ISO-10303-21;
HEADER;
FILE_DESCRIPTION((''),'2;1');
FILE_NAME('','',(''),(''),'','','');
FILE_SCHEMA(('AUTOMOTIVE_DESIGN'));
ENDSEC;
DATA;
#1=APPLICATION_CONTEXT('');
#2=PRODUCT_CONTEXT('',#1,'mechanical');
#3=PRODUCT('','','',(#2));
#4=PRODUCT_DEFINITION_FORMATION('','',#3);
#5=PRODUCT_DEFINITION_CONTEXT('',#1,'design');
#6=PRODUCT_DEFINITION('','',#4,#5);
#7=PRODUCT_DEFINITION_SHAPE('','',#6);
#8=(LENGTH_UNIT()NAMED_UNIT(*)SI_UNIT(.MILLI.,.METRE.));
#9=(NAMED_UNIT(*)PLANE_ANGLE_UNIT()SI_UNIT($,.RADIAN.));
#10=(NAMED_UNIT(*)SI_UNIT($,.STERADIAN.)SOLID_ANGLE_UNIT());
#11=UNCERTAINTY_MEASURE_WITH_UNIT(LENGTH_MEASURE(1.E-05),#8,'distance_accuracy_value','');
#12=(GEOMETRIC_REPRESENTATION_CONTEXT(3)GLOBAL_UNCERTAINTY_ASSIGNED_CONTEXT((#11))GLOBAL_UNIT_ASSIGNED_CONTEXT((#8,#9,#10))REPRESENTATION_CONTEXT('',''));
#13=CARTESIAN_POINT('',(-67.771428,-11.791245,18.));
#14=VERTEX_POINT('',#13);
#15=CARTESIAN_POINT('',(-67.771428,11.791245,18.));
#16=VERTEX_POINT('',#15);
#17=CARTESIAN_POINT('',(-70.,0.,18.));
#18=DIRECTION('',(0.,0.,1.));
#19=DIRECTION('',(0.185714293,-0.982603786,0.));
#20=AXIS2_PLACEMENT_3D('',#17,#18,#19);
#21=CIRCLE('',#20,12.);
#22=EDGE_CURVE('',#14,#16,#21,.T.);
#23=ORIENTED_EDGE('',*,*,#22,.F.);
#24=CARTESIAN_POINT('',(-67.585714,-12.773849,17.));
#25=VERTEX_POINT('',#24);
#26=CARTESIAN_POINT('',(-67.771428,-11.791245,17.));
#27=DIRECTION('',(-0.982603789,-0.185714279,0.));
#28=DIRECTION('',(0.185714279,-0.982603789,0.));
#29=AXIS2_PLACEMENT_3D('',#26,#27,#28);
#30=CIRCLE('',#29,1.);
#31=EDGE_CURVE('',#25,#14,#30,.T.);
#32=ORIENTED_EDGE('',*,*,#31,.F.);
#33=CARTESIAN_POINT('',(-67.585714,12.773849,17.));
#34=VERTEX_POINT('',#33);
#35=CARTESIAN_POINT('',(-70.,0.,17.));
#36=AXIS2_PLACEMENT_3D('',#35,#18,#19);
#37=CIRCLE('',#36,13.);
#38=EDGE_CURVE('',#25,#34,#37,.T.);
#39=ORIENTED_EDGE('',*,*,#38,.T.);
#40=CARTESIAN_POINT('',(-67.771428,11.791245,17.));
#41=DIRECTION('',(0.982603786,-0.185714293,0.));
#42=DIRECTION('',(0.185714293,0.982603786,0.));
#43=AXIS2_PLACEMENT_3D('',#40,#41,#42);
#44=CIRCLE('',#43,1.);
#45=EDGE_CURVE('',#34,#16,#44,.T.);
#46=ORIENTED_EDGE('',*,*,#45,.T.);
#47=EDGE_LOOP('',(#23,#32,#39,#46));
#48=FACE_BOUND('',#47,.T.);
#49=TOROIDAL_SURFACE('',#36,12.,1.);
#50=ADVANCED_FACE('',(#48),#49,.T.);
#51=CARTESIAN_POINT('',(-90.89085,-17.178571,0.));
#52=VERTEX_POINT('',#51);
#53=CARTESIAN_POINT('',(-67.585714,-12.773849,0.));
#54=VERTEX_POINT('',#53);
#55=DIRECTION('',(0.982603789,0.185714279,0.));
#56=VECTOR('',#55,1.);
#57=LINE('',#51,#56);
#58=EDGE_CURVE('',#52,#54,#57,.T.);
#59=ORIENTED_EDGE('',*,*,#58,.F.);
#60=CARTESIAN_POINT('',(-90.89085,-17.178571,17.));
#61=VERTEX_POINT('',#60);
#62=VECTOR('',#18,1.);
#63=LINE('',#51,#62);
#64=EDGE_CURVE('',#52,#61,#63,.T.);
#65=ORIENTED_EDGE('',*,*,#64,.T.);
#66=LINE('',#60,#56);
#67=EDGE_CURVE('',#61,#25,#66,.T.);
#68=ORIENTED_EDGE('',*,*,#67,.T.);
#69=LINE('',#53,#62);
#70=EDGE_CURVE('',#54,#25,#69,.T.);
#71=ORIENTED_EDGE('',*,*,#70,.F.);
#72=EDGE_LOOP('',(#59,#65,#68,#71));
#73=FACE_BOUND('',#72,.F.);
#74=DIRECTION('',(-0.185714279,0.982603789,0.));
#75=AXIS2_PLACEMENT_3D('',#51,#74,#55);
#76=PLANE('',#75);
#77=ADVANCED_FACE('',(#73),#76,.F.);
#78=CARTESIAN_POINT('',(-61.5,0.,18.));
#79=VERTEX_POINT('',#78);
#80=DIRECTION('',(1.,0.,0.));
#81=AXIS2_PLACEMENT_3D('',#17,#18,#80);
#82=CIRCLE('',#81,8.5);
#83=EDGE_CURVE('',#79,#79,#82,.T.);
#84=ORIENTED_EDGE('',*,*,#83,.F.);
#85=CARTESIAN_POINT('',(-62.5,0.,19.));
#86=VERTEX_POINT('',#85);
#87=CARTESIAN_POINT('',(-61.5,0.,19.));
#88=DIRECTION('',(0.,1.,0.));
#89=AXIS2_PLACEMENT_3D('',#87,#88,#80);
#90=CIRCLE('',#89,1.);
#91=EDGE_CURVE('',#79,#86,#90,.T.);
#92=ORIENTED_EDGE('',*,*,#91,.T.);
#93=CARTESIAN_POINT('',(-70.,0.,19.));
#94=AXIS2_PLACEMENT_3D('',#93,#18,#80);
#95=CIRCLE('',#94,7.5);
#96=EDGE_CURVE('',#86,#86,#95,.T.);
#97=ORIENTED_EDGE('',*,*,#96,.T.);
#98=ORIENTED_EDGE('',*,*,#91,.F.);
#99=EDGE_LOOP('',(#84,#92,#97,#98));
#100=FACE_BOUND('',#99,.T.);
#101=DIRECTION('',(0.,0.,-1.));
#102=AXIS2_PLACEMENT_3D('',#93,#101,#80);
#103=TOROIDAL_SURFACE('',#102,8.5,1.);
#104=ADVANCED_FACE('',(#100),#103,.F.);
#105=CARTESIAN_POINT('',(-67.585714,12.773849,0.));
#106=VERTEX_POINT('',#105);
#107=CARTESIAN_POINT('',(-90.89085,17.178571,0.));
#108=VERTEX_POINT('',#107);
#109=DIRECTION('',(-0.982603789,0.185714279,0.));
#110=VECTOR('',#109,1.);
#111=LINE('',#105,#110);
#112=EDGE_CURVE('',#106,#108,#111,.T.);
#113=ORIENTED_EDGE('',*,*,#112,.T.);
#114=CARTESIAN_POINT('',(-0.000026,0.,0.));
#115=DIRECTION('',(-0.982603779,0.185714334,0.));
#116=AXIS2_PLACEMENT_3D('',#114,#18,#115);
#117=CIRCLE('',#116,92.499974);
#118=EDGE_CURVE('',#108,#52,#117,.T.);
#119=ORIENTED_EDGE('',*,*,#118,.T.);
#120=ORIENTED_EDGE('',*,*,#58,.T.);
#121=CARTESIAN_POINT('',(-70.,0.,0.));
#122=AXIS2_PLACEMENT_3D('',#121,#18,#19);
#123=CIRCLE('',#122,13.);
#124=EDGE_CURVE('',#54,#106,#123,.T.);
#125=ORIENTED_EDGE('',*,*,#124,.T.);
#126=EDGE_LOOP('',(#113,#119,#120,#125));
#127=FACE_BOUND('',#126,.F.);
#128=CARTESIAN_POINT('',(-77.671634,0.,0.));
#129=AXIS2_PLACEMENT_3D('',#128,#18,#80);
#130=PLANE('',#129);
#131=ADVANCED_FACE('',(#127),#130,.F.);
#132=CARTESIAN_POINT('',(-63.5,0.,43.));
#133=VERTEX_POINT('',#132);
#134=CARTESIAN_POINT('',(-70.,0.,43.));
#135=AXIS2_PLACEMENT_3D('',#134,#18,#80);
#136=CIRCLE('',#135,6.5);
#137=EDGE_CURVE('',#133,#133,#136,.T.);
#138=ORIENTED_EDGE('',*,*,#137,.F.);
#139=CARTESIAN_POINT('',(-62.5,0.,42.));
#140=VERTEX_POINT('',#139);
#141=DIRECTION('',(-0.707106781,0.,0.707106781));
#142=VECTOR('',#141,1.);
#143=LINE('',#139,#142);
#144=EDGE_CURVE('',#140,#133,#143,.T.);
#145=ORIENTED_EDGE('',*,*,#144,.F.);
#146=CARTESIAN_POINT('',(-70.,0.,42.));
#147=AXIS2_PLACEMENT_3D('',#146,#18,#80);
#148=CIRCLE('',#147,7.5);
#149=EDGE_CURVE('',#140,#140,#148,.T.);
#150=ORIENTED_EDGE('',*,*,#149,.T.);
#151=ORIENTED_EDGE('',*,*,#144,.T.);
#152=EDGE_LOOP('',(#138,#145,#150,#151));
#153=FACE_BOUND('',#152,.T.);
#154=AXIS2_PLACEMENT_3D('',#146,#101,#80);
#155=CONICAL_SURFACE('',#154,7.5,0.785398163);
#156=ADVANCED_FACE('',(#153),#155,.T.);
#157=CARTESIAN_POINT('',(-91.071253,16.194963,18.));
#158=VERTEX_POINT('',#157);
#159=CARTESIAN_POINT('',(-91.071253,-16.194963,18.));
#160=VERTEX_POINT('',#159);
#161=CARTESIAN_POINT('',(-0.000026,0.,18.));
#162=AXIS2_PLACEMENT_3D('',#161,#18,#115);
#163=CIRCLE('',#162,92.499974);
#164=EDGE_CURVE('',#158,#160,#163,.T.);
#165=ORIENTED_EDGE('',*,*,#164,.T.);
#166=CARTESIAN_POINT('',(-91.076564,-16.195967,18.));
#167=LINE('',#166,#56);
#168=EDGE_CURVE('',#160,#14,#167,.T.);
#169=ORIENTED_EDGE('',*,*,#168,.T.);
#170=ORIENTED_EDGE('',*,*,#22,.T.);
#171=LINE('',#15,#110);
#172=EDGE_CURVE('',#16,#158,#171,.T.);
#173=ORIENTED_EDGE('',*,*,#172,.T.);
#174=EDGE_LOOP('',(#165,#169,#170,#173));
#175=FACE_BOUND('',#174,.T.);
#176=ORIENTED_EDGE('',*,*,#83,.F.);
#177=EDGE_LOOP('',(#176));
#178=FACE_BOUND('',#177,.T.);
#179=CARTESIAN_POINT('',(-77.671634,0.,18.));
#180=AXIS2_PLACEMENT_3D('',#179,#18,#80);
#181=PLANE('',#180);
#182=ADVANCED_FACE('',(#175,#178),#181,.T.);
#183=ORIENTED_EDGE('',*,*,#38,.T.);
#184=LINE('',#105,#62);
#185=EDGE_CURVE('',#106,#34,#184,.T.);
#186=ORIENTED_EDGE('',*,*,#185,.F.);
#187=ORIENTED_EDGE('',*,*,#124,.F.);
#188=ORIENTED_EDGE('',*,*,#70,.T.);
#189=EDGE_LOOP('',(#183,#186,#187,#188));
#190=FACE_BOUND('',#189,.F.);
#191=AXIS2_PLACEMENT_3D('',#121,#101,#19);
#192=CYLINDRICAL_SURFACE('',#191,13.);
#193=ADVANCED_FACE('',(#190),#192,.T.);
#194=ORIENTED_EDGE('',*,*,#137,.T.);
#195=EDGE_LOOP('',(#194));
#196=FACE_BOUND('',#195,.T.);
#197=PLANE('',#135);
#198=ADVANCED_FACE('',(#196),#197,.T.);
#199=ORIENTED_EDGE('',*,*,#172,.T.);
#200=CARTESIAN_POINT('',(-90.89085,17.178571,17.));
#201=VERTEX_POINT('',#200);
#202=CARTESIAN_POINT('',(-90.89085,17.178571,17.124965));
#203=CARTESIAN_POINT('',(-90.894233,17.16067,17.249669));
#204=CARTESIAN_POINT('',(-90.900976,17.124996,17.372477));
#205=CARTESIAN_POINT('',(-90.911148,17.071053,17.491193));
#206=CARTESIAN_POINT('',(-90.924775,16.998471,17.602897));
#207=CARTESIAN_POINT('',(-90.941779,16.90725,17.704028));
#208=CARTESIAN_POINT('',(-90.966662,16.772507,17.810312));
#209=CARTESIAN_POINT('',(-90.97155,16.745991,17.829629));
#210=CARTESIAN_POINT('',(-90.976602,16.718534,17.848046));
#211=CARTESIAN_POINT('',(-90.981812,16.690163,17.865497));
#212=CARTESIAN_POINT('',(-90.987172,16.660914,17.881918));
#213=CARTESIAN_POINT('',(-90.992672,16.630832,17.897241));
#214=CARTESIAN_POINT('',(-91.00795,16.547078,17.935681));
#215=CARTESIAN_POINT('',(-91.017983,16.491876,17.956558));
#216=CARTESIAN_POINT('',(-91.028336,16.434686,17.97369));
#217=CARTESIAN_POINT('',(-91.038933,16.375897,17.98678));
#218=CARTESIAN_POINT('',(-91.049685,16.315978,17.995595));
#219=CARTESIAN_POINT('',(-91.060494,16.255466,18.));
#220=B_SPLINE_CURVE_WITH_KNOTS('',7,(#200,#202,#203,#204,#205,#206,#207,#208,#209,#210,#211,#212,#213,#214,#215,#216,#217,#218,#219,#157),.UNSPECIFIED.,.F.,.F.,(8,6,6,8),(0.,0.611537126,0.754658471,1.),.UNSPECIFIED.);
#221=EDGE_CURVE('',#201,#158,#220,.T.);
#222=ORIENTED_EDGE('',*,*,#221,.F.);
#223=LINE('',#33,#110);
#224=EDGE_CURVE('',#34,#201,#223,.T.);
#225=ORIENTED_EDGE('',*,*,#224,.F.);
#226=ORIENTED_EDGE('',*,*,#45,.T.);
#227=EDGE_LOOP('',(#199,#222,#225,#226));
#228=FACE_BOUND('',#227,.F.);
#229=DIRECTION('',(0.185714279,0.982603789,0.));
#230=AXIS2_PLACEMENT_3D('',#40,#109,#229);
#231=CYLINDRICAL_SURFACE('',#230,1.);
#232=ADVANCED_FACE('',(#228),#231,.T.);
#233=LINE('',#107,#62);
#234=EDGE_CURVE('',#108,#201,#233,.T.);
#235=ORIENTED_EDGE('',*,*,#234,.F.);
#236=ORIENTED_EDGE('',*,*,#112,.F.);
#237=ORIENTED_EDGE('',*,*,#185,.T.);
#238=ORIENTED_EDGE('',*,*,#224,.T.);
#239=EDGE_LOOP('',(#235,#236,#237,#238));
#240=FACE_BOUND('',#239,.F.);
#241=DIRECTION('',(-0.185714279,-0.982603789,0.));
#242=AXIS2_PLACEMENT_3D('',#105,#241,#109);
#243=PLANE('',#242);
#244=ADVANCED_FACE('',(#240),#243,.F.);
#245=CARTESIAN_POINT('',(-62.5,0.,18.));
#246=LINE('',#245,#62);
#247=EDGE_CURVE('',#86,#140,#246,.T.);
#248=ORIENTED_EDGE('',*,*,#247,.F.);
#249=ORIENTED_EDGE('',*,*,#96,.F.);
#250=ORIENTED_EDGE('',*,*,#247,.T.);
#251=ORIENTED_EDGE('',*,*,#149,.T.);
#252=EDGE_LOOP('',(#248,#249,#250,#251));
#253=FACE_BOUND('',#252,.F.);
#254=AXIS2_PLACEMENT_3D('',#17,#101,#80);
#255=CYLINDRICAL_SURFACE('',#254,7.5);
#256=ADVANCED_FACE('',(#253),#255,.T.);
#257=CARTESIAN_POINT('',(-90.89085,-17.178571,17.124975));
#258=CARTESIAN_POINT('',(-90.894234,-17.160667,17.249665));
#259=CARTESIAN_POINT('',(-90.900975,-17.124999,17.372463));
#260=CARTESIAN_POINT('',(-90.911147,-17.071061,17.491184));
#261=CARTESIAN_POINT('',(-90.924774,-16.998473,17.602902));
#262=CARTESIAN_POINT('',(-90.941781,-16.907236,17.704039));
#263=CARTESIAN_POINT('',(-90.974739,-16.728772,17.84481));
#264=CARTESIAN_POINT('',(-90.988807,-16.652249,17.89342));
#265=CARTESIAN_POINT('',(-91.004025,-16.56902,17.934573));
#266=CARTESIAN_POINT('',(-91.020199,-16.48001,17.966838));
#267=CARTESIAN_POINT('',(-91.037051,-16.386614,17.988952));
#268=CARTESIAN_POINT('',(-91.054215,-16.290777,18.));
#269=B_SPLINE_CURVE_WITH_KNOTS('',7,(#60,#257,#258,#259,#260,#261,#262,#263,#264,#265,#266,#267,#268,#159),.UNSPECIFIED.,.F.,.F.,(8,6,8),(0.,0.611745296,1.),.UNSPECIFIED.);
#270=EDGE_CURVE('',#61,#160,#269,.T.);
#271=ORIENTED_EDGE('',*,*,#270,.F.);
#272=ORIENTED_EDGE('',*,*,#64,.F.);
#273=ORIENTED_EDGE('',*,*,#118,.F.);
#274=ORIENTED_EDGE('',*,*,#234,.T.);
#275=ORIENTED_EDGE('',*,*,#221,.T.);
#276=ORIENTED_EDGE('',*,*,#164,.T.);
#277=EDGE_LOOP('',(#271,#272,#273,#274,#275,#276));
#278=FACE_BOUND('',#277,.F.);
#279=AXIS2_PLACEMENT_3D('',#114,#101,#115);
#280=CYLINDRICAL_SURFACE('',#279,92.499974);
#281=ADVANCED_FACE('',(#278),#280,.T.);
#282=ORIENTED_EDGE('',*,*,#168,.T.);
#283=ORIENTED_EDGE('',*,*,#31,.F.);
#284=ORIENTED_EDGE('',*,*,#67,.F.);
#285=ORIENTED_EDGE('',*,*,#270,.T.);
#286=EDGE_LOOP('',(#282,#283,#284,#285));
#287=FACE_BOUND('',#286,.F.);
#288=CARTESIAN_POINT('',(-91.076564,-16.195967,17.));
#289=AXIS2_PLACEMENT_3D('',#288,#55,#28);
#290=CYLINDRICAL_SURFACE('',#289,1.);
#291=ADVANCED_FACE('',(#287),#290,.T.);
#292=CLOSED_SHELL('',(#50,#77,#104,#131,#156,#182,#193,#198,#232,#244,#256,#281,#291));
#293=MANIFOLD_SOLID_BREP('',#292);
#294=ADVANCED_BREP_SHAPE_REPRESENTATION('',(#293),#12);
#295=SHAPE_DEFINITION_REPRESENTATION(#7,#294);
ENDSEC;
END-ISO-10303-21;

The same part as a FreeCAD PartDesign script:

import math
import FreeCAD as App
import Part
import Sketcher

V = App.Vector


def edges_at(feature, points):
    """Names of the edges that pass closest to the given points."""
    edges = feature.Shape.Edges
    near = lambda p: min(range(len(edges)), key=lambda i: edges[i].distToShape(Part.Vertex(*p))[0])
    return sorted({f"Edge{near(p) + 1}" for p in points})

doc = App.newDocument("Part")
params = doc.addObject("Spreadsheet::Sheet", "Params")
for row, (alias, value) in enumerate([
    ("sketch1_radius", "13 mm"),
    ("pad1_length", "18 mm"),
    ("sketch2_diameter", "15 mm"),
    ("pad2_length", "25 mm"),
    ("fillet_radius", "1 mm"),
    ("chamfer_size", "1 mm"),
], start=1):
    params.set(f"A{row}", alias)
    params.set(f"B{row}", "=" + value)
    params.setAlias(f"B{row}", alias)

body = doc.addObject("PartDesign::Body", "Body")

# Sketch on XY plane
sketch1 = body.newObject("Sketcher::SketchObject", "Sketch")
sketch1.AttachmentSupport = (doc.getObject("XY_Plane"), [""])
sketch1.MapMode = "FlatFace"
sketch1.addGeometry([
    Part.LineSegment(V(-68, 13, 0), V(-91, 17, 0)),
    Part.ArcOfCircle(Part.Circle(V(0, 0, 0), V(0, 0, 1), 92), math.radians(169), math.radians(191)),
    Part.LineSegment(V(-91, -17, 0), V(-68, -13, 0)),
    Part.ArcOfCircle(Part.Circle(V(-70, 0, 0), V(0, 0, 1), 13), math.radians(-79), math.radians(79)),
], False)
sketch1.addConstraint([
    Sketcher.Constraint("Coincident", 0, 2, 1, 1),
    Sketcher.Constraint("Coincident", 1, 2, 2, 1),
    Sketcher.Constraint("Tangent", 2, 2, 3, 1),
    Sketcher.Constraint("Tangent", 3, 2, 0, 1),
    Sketcher.Constraint("Symmetric", 0, 2, 1, 2, -1),
    Sketcher.Constraint("PointOnObject", 3, 3, -1),
    Sketcher.Constraint("Radius", 3, 13.0),
    Sketcher.Constraint("DistanceX", 3, 3, -1, 1, 70.0),
    Sketcher.Constraint("Radius", 1, 92.499974),
    Sketcher.Constraint("DistanceY", 2, 2, 3, 2, 25.547698),
    Sketcher.Constraint("DistanceX", 0, 2, -1, 1, 90.89085),
])
sketch1.setExpression("Constraints[6]", "Params.sketch1_radius")
pad1 = body.newObject("PartDesign::Pad", "Pad")
pad1.Profile = sketch1
pad1.setExpression("Length", "Params.pad1_length")

# Sketch on XY plane
sketch2 = body.newObject("Sketcher::SketchObject", "Sketch001")
sketch2.AttachmentSupport = (doc.getObject("XY_Plane"), [""])
sketch2.MapMode = "FlatFace"
sketch2.AttachmentOffset = App.Placement(V(0, 0, 18), App.Rotation())
sketch2.addGeometry(Part.Circle(V(-70, 0, 0), V(0, 0, 1), 8), False)
sketch2.addConstraint([
    Sketcher.Constraint("PointOnObject", 0, 3, -1),
    Sketcher.Constraint("Diameter", 0, 15.0),
    Sketcher.Constraint("DistanceX", 0, 3, -1, 1, 70.0),
])
sketch2.setExpression("Constraints[1]", "Params.sketch2_diameter")
pad2 = body.newObject("PartDesign::Pad", "Pad001")
pad2.Profile = sketch2
pad2.setExpression("Length", "Params.pad2_length")
doc.recompute()

fillet = body.newObject("PartDesign::Fillet", "Fillet")
fillet.Base = (pad2, edges_at(pad2, [(-77.5, 0, 18), (-79.238, 14.976, 18)]))
fillet.setExpression("Radius", "Params.fillet_radius")
doc.recompute()

chamfer = body.newObject("PartDesign::Chamfer", "Chamfer")
chamfer.Base = (fillet, edges_at(fillet, [(-77.5, 0, 43)]))
chamfer.setExpression("Size", "Params.chamfer_size")

doc.recompute()
